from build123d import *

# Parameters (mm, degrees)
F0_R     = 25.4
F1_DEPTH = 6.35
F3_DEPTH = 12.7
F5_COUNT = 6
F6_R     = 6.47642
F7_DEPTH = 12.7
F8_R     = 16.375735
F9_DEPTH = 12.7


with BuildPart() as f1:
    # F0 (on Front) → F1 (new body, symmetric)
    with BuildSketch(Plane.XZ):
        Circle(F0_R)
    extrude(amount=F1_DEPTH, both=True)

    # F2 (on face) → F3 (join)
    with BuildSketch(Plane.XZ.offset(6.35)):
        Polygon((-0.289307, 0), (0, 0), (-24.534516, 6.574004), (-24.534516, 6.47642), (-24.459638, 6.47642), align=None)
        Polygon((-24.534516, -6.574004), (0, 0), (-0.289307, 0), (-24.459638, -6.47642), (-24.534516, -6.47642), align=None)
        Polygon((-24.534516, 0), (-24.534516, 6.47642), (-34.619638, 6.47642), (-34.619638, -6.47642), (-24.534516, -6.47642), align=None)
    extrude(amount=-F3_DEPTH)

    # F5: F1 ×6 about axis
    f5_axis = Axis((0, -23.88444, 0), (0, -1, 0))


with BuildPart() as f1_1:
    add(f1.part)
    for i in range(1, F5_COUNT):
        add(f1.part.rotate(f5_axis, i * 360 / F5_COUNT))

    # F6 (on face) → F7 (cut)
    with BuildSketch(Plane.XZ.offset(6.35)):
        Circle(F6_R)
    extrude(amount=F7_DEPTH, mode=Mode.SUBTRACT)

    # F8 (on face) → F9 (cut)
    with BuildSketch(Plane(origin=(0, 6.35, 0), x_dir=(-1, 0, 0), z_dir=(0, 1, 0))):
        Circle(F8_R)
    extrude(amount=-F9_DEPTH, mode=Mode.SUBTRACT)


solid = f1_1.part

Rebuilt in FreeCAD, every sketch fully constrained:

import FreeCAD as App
import Part
import Sketcher

V = App.Vector
Q = App.Units.Quantity

doc = App.newDocument("Part")
params = doc.addObject("Spreadsheet::Sheet", "Params")
for row, (alias, value) in enumerate([
    ("sketch1_diameter", "2 in"),
    ("pad1_length", "0.5 in"),
    ("sketch2_length", "1 in"),
    ("pad2_length", "0.5 in"),
    ("pocket1_length", "0.5 in"),
    ("pocket2_length", "0.5 in"),
], start=1):
    params.set(f"A{row}", alias)
    params.set(f"B{row}", "=" + value)
    params.setAlias(f"B{row}", alias)

body = doc.addObject("PartDesign::Body", "Body")

# Sketch on XZ plane
sketch1 = doc.addObject("Sketcher::SketchObject", "Sketch")
body.addObject(sketch1)
sketch1.AttachmentSupport = (doc.XZ_Plane, [""])
sketch1.MapMode = "FlatFace"
sketch1.addGeometry(Part.Circle(V(0, 0, 0), V(0, 0, 1), 25.4), False)
sketch1.addConstraint(Sketcher.Constraint("Coincident", 0, 3, -1, 1))
sketch1.addConstraint(Sketcher.Constraint("Diameter", 0, Q("2 in")))
sketch1.setExpression("Constraints[1]", "Params.sketch1_diameter")
pad1 = doc.addObject("PartDesign::Pad", "Pad")
body.addObject(pad1)
pad1.Profile = sketch1
pad1.setExpression("Length", "Params.pad1_length")
pad1.Midplane = True

# Sketch on XZ plane
sketch2 = doc.addObject("Sketcher::SketchObject", "Sketch001")
body.addObject(sketch2)
sketch2.AttachmentSupport = (doc.XZ_Plane, [""])
sketch2.MapMode = "FlatFace"
sketch2.AttachmentOffset = App.Placement(V(0, 0, 0.25 * 25.4), App.Rotation())
sketch2.addGeometry(Part.LineSegment(V(0, 0, 0), V(-24.534516, 6.574004, 0)), False)
sketch2.addGeometry(Part.LineSegment(V(-24.534516, 6.574004, 0), V(-24.534516, 6.47642, 0)), False)
sketch2.addGeometry(Part.LineSegment(V(-24.534516, 6.47642, 0), V(-24.459638, 6.47642, 0)), False)
sketch2.addGeometry(Part.LineSegment(V(-24.459638, 6.47642, 0), V(-0.289307, 0, 0)), False)
sketch2.addGeometry(Part.LineSegment(V(-0.289307, 0, 0), V(-24.459638, -6.47642, 0)), False)
sketch2.addGeometry(Part.LineSegment(V(-24.459638, -6.47642, 0), V(-24.534516, -6.47642, 0)), False)
sketch2.addGeometry(Part.LineSegment(V(-24.534516, -6.47642, 0), V(-24.534516, -6.574004, 0)), False)
sketch2.addGeometry(Part.LineSegment(V(-24.534516, -6.574004, 0), V(0, 0, 0)), False)
sketch2.addGeometry(Part.LineSegment(V(-24.534516, 6.47642, 0), V(-34.619638, 6.47642, 0)), False)
sketch2.addGeometry(Part.LineSegment(V(-34.619638, 6.47642, 0), V(-34.619638, -6.47642, 0)), False)
sketch2.addGeometry(Part.LineSegment(V(-34.619638, -6.47642, 0), V(-24.534516, -6.47642, 0)), False)
sketch2.addGeometry(Part.LineSegment(V(-24.534516, -6.47642, 0), V(-24.534516, 6.47642, 0)), False)
sketch2.addConstraint(Sketcher.Constraint("Coincident", 0, 2, 1, 1))
sketch2.addConstraint(Sketcher.Constraint("Coincident", 1, 2, 2, 1))
sketch2.addConstraint(Sketcher.Constraint("Coincident", 2, 2, 3, 1))
sketch2.addConstraint(Sketcher.Constraint("Coincident", 3, 2, 4, 1))
sketch2.addConstraint(Sketcher.Constraint("Coincident", 4, 2, 5, 1))
sketch2.addConstraint(Sketcher.Constraint("Coincident", 5, 2, 6, 1))
sketch2.addConstraint(Sketcher.Constraint("Coincident", 6, 2, 7, 1))
sketch2.addConstraint(Sketcher.Constraint("Coincident", 7, 2, 0, 1))
sketch2.addConstraint(Sketcher.Constraint("Coincident", 8, 2, 9, 1))
sketch2.addConstraint(Sketcher.Constraint("Coincident", 9, 2, 10, 1))
sketch2.addConstraint(Sketcher.Constraint("Coincident", 10, 2, 11, 1))
sketch2.addConstraint(Sketcher.Constraint("Coincident", 11, 2, 8, 1))
sketch2.addConstraint(Sketcher.Constraint("Vertical", 1))
sketch2.addConstraint(Sketcher.Constraint("Horizontal", 2))
sketch2.addConstraint(Sketcher.Constraint("Horizontal", 5))
sketch2.addConstraint(Sketcher.Constraint("Vertical", 6))
sketch2.addConstraint(Sketcher.Constraint("Horizontal", 8))
sketch2.addConstraint(Sketcher.Constraint("Vertical", 9))
sketch2.addConstraint(Sketcher.Constraint("Horizontal", 10))
sketch2.addConstraint(Sketcher.Constraint("Vertical", 11))
sketch2.addConstraint(Sketcher.Constraint("Coincident", 7, 2, -1, 1))
sketch2.addConstraint(Sketcher.Constraint("Coincident", 10, 2, 5, 2))
sketch2.addConstraint(Sketcher.Constraint("Coincident", 11, 2, 1, 2))
sketch2.addConstraint(Sketcher.Constraint("Symmetric", 2, 2, 4, 2, -1))
sketch2.addConstraint(Sketcher.Constraint("PointOnObject", 3, 2, -1))
sketch2.addConstraint(Sketcher.Constraint("Parallel", 0, 3))
sketch2.addConstraint(Sketcher.Constraint("Parallel", 4, 7))
sketch2.addConstraint(Sketcher.Constraint("Distance", 0, Q("1 in")))
sketch2.addConstraint(Sketcher.Constraint("Angle", 0, Q("164.999999 deg")))
sketch2.addConstraint(Sketcher.Constraint("DistanceX", 8, 2, 2, 2, Q("0.4 in")))
sketch2.addConstraint(Sketcher.Constraint("DistanceY", 9, 2, 9, 1, 12.95284))
sketch2.addConstraint(Sketcher.Constraint("DistanceX", 2, 1, 2, 2, 0.074878))
sketch2.setExpression("Constraints[27]", "Params.sketch2_length")
pad2 = doc.addObject("PartDesign::Pad", "Pad001")
body.addObject(pad2)
pad2.Profile = sketch2
pad2.setExpression("Length", "Params.pad2_length")
pad2.Reversed = True
body2 = doc.addObject("PartDesign::Body", "Body001")
doc.recompute()

body2.BaseFeature = body
doc.recompute()

body3 = doc.addObject("PartDesign::Body", "Body002")
body3.BaseFeature = body
body3.Placement = App.Placement(V(0, 0, 0), App.Rotation(V(0, -1, 0), 60))
boolean = doc.addObject("PartDesign::Boolean", "Boolean")
body2.addObject(boolean)
boolean.Type = "Fuse"
boolean.addObjects([body3])
doc.recompute()

body4 = doc.addObject("PartDesign::Body", "Body003")
body4.BaseFeature = body
body4.Placement = App.Placement(V(0, 0, 0), App.Rotation(V(0, -1, 0), 120))
boolean2 = doc.addObject("PartDesign::Boolean", "Boolean001")
body2.addObject(boolean2)
boolean2.Type = "Fuse"
boolean2.addObjects([body4])
doc.recompute()

body5 = doc.addObject("PartDesign::Body", "Body004")
body5.BaseFeature = body
body5.Placement = App.Placement(V(0, 0, 0), App.Rotation(V(0, -1, 0), 180))
boolean3 = doc.addObject("PartDesign::Boolean", "Boolean002")
body2.addObject(boolean3)
boolean3.Type = "Fuse"
boolean3.addObjects([body5])
doc.recompute()

body6 = doc.addObject("PartDesign::Body", "Body005")
body6.BaseFeature = body
body6.Placement = App.Placement(V(0, 0, 0), App.Rotation(V(0, -1, 0), 240))
boolean4 = doc.addObject("PartDesign::Boolean", "Boolean003")
body2.addObject(boolean4)
boolean4.Type = "Fuse"
boolean4.addObjects([body6])
doc.recompute()

body.Placement = App.Placement(V(0, 0, 0), App.Rotation(V(0, -1, 0), 300))
boolean5 = doc.addObject("PartDesign::Boolean", "Boolean004")
body2.addObject(boolean5)
boolean5.Type = "Fuse"
boolean5.addObjects([body])

# Sketch on XZ plane
sketch3 = doc.addObject("Sketcher::SketchObject", "Sketch002")
body2.addObject(sketch3)
sketch3.AttachmentSupport = (doc.getObject("XZ_Plane001"), [""])
sketch3.MapMode = "FlatFace"
sketch3.AttachmentOffset = App.Placement(V(0, 0, 0.25 * 25.4), App.Rotation())
sketch3.addGeometry(Part.Circle(V(0, 0, 0), V(0, 0, 1), 6.47642), False)
sketch3.addConstraint(Sketcher.Constraint("Coincident", 0, 3, -1, 1))
sketch3.addConstraint(Sketcher.Constraint("Diameter", 0, 12.95284))
pocket1 = doc.addObject("PartDesign::Pocket", "Pocket")
body2.addObject(pocket1)
pocket1.Profile = sketch3
pocket1.setExpression("Length", "Params.pocket1_length")
pocket1.Reversed = True

# Sketch on XZ plane
sketch4 = doc.addObject("Sketcher::SketchObject", "Sketch003")
body2.addObject(sketch4)
sketch4.AttachmentSupport = (doc.getObject("XZ_Plane001"), [""])
sketch4.MapMode = "FlatFace"
sketch4.AttachmentOffset = App.Placement(V(0, 0, -0.25 * 25.4), App.Rotation())
sketch4.addGeometry(Part.Circle(V(0, 0, 0), V(0, 0, 1), 16.375735), False)
sketch4.addConstraint(Sketcher.Constraint("Coincident", 0, 3, -1, 1))
sketch4.addConstraint(Sketcher.Constraint("Diameter", 0, 32.75147))
pocket2 = doc.addObject("PartDesign::Pocket", "Pocket001")
body2.addObject(pocket2)
pocket2.Profile = sketch4
pocket2.setExpression("Length", "Params.pocket2_length")
pocket2.Reversed = True

doc.recompute()
